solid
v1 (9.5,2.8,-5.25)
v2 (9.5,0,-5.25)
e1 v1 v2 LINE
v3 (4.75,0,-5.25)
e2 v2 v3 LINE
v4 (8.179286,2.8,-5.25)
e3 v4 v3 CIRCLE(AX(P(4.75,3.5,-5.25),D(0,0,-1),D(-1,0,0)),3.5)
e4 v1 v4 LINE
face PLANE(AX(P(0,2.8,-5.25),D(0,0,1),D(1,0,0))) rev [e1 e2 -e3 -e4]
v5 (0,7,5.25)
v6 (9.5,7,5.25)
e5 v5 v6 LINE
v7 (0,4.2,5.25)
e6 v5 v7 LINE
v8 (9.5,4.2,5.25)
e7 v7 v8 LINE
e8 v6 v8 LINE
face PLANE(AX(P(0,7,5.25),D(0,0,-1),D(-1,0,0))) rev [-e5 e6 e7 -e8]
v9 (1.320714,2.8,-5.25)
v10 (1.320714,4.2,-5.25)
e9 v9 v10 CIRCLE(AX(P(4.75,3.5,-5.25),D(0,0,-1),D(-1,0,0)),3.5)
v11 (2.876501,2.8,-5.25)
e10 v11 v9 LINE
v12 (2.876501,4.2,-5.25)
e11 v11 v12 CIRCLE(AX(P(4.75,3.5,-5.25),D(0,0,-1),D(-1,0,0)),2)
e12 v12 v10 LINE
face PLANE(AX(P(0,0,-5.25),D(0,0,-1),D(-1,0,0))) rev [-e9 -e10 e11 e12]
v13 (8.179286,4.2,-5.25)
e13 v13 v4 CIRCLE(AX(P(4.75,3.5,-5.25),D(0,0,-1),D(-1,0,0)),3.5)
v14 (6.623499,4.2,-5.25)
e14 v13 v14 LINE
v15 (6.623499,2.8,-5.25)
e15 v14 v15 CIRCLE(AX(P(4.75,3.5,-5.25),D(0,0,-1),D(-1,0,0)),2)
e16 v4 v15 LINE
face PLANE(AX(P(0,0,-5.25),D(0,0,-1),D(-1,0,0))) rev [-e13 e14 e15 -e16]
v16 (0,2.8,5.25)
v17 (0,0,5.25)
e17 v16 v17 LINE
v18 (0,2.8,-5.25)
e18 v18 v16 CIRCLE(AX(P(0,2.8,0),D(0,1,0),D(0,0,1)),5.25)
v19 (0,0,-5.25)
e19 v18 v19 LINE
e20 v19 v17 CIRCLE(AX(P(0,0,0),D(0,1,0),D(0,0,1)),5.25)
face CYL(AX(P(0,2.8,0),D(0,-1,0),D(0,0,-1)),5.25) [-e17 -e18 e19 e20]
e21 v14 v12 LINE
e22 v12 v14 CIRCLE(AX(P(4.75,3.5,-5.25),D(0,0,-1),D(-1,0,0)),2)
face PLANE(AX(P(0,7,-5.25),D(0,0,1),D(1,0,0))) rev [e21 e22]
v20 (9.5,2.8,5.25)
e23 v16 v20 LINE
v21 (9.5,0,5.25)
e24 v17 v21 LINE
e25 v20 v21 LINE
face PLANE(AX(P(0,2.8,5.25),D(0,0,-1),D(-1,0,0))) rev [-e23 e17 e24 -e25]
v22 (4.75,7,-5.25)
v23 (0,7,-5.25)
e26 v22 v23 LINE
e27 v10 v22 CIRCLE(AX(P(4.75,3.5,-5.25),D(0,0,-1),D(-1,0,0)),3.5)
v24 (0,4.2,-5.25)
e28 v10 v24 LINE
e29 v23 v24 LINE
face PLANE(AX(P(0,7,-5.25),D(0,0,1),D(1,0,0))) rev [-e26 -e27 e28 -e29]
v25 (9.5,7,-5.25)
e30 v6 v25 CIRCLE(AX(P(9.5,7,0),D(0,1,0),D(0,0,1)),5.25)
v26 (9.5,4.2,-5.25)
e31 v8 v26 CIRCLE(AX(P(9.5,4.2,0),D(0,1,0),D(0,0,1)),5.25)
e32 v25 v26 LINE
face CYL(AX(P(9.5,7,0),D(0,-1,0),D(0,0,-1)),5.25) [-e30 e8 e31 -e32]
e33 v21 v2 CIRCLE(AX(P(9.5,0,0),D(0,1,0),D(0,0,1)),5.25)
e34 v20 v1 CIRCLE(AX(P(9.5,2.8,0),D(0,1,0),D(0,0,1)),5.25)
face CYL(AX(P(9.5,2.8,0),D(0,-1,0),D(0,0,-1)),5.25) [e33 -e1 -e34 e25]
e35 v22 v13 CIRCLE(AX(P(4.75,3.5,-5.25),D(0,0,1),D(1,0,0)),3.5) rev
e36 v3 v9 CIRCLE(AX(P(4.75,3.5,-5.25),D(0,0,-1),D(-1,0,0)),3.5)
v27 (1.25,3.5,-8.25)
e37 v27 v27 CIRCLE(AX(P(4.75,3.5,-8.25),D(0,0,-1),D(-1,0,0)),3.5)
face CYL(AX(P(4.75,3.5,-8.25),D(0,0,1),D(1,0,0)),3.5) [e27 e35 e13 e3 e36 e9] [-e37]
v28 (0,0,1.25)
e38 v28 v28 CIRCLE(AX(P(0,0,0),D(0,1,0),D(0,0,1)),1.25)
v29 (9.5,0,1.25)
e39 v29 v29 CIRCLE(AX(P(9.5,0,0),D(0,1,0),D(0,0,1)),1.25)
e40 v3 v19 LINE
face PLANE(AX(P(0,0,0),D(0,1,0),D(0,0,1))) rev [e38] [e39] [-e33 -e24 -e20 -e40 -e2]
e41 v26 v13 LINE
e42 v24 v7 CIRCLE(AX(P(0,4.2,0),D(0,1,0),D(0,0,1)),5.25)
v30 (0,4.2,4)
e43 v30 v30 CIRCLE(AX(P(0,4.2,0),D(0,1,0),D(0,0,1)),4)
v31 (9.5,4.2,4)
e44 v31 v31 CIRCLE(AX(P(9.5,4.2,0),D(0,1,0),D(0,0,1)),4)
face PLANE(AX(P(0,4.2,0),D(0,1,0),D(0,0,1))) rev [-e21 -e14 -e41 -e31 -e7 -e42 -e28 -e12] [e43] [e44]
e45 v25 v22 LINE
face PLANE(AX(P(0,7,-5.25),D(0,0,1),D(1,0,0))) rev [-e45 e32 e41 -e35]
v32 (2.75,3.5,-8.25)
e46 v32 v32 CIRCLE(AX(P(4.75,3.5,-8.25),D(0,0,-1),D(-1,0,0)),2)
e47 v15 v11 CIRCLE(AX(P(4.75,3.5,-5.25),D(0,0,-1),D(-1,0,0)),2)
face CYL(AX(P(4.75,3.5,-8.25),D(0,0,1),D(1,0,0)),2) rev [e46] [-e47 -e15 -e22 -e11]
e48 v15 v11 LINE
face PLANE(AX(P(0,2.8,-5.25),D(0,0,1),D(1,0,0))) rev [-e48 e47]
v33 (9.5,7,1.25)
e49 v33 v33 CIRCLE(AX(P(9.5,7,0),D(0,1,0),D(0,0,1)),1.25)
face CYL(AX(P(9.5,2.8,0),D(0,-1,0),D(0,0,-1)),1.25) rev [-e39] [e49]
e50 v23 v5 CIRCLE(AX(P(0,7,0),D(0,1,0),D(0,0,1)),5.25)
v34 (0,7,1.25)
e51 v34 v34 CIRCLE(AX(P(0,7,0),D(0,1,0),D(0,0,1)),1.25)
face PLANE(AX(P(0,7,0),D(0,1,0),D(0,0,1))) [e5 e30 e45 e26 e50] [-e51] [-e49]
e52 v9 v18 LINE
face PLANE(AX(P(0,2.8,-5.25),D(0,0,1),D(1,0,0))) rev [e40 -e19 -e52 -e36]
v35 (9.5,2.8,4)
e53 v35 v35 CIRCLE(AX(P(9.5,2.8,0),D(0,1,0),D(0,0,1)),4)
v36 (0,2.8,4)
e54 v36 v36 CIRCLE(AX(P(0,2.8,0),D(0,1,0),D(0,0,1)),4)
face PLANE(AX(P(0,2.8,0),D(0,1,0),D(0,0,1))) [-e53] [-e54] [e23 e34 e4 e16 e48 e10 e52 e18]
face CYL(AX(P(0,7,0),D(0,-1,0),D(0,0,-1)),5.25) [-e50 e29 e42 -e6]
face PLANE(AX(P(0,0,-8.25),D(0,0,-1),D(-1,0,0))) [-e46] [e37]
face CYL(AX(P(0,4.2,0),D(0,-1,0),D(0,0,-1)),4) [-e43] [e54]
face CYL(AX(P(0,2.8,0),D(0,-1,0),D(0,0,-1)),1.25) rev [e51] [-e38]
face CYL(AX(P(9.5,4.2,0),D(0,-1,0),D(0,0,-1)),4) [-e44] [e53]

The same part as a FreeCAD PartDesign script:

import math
import FreeCAD as App
import Part
import Sketcher
Q = App.Units.Quantity

doc = App.newDocument("Part")
body = doc.addObject("PartDesign::Body", "Body")

# Sketch on XZ plane
sketch1 = body.newObject("Sketcher::SketchObject", "Sketch")
sketch1.AttachmentSupport = (doc.getObject("XZ_Plane"), [""])
sketch1.MapMode = "FlatFace"
sketch1.addGeometry([
    Part.LineSegment(App.Vector(9.5, -5.2, 0), App.Vector(0, -5.2, 0)),  # 0
    Part.ArcOfCircle(Part.Circle(App.Vector(0, 0, 0), App.Vector(0, 0, 1), 5.2), math.radians(90), math.radians(270)),  # 1
    Part.LineSegment(App.Vector(0, 5.2, 0), App.Vector(9.5, 5.2, 0)),  # 2
    Part.ArcOfCircle(Part.Circle(App.Vector(9.5, 0, 0), App.Vector(0, 0, 1), 5.2), math.radians(-90), math.radians(90)),  # 3
    Part.Circle(App.Vector(9.5, 0, 0), App.Vector(0, 0, 1), 1.2),  # 4
    Part.Circle(App.Vector(0, 0, 0), App.Vector(0, 0, 1), 1.2),  # 5
], False)
sketch1.addConstraint([
    Sketcher.Constraint("Tangent", 0, 2, 1, 2),
    Sketcher.Constraint("Tangent", 1, 1, 2, 1),
    Sketcher.Constraint("Tangent", 2, 2, 3, 2),
    Sketcher.Constraint("Tangent", 3, 1, 0, 1),
    Sketcher.Constraint("Horizontal", 0),
    Sketcher.Constraint("Horizontal", 2),
    Sketcher.Constraint("Coincident", 1, 3, -1, 1),
    Sketcher.Constraint("Coincident", 5, 3, -1, 1),
    Sketcher.Constraint("Coincident", 4, 3, 3, 3),
    Sketcher.Constraint("Equal", 4, 5),
    Sketcher.Constraint("Diameter", 4, Q("2.5 mm")),
    Sketcher.Constraint("Radius", 1, Q("5.25 mm")),
    Sketcher.Constraint("DistanceX", 0, 2, 0, 1, Q("9.5 mm")),
])
pad1 = body.newObject("PartDesign::Pad", "Pad")
pad1.Profile = sketch1
pad1.Length = 2.8
pad1.Reversed = True

# Sketch on XZ plane
sketch2 = body.newObject("Sketcher::SketchObject", "Sketch001")
sketch2.AttachmentSupport = (doc.getObject("XZ_Plane"), [""])
sketch2.MapMode = "FlatFace"
sketch2.AttachmentOffset = App.Placement(App.Vector(0, 0, -2.8), App.Rotation())
sketch2.addGeometry([
    Part.Circle(App.Vector(0, 0, 0), App.Vector(0, 0, 1), 4),
    Part.Circle(App.Vector(0, 0, 0), App.Vector(0, 0, 1), 1.2),
    Part.Circle(App.Vector(9.5, 0, 0), App.Vector(0, 0, 1), 4),
    Part.Circle(App.Vector(9.5, 0, 0), App.Vector(0, 0, 1), 1.2),
], False)
sketch2.addConstraint([
    Sketcher.Constraint("Coincident", 0, 3, -1, 1),
    Sketcher.Constraint("Coincident", 1, 3, -1, 1),
    Sketcher.Constraint("Coincident", 3, 3, 2, 3),
    Sketcher.Constraint("Equal", 0, 2),
    Sketcher.Constraint("Equal", 1, 3),
    Sketcher.Constraint("PointOnObject", 2, 3, -1),
    Sketcher.Constraint("Diameter", 0, Q("8 mm")),
    Sketcher.Constraint("Diameter", 1, Q("2.5 mm")),
    Sketcher.Constraint("DistanceX", -1, 1, 2, 3, Q("9.5 mm")),
])
pad2 = body.newObject("PartDesign::Pad", "Pad001")
pad2.Profile = sketch2
pad2.Length = 1.4
pad2.Reversed = True

# Sketch on XZ plane
sketch3 = body.newObject("Sketcher::SketchObject", "Sketch002")
sketch3.AttachmentSupport = (doc.getObject("XZ_Plane"), [""])
sketch3.MapMode = "FlatFace"
sketch3.AttachmentOffset = App.Placement(App.Vector(0, 0, -4.2), App.Rotation())
sketch3.addGeometry([
    Part.LineSegment(App.Vector(9.5, -5.2, 0), App.Vector(0, -5.2, 0)),  # 0
    Part.ArcOfCircle(Part.Circle(App.Vector(0, 0, 0), App.Vector(0, 0, 1), 5.2), math.radians(90), math.radians(270)),  # 1
    Part.LineSegment(App.Vector(0, 5.2, 0), App.Vector(9.5, 5.2, 0)),  # 2
    Part.ArcOfCircle(Part.Circle(App.Vector(9.5, 0, 0), App.Vector(0, 0, 1), 5.2), math.radians(-90), math.radians(90)),  # 3
    Part.Circle(App.Vector(9.5, 0, 0), App.Vector(0, 0, 1), 1.2),  # 4
    Part.Circle(App.Vector(0, 0, 0), App.Vector(0, 0, 1), 1.2),  # 5
], False)
sketch3.addConstraint([
    Sketcher.Constraint("Tangent", 0, 2, 1, 2),
    Sketcher.Constraint("Tangent", 1, 1, 2, 1),
    Sketcher.Constraint("Tangent", 2, 2, 3, 2),
    Sketcher.Constraint("Tangent", 3, 1, 0, 1),
    Sketcher.Constraint("Horizontal", 0),
    Sketcher.Constraint("Horizontal", 2),
    Sketcher.Constraint("Coincident", 1, 3, -1, 1),
    Sketcher.Constraint("Coincident", 5, 3, -1, 1),
    Sketcher.Constraint("Coincident", 4, 3, 3, 3),
    Sketcher.Constraint("Equal", 4, 5),
    Sketcher.Constraint("Diameter", 4, Q("2.5 mm")),
    Sketcher.Constraint("Radius", 1, Q("5.25 mm")),
    Sketcher.Constraint("DistanceX", 0, 2, 0, 1, Q("9.5 mm")),
])
pad3 = body.newObject("PartDesign::Pad", "Pad002")
pad3.Profile = sketch3
pad3.Length = 2.8
pad3.Reversed = True

# Sketch on XY plane
sketch4 = body.newObject("Sketcher::SketchObject", "Sketch003")
sketch4.AttachmentSupport = (doc.getObject("XY_Plane"), [""])
sketch4.MapMode = "FlatFace"
sketch4.AttachmentOffset = App.Placement(App.Vector(0, 0, -5.25), App.Rotation())
sketch4.addGeometry([
    Part.ArcOfCircle(Part.Circle(App.Vector(4.8, 3.5, 0), App.Vector(0, 0, 1), 3.5), math.radians(-144), math.radians(-36)),  # 0
    Part.ArcOfCircle(Part.Circle(App.Vector(4.8, 3.5, 0), App.Vector(0, 0, 1), 3.5), math.radians(-168), math.radians(-144)),  # 1
    Part.ArcOfCircle(Part.Circle(App.Vector(4.7, 3.5, 0), App.Vector(0, 0, 1), 3.5), math.radians(180), math.radians(191.54)),  # 2
    Part.ArcOfCircle(Part.Circle(App.Vector(4.7, 3.5, 0), App.Vector(0, 0, 1), 3.5), math.radians(144), math.radians(180)),  # 3
    Part.ArcOfCircle(Part.Circle(App.Vector(4.8, 3.5, 0), App.Vector(0, 0, 1), 3.5), math.radians(36), math.radians(144)),  # 4
    Part.ArcOfCircle(Part.Circle(App.Vector(4.7, 3.5, 0), App.Vector(0, 0, 1), 3.5), math.radians(-12), math.radians(36)),  # 5
    Part.ArcOfCircle(Part.Circle(App.Vector(4.7, 3.5, 0), App.Vector(0, 0, 1), 3.5), math.radians(-36), math.radians(-12)),  # 6
    Part.ArcOfCircle(Part.Circle(App.Vector(4.8, 3.5, 0), App.Vector(0, 0, 1), 2), math.radians(-144), math.radians(-36)),  # 7
    Part.ArcOfCircle(Part.Circle(App.Vector(4.7, 3.5, 0), App.Vector(0, 0, 1), 2), math.radians(-36.38), math.radians(-20.49)),  # 8
    Part.ArcOfCircle(Part.Circle(App.Vector(4.7, 3.5, 0), App.Vector(0, 0, 1), 2), math.radians(-20), math.radians(36)),  # 9
    Part.ArcOfCircle(Part.Circle(App.Vector(4.8, 3.5, 0), App.Vector(0, 0, 1), 2), math.radians(36), math.radians(144)),  # 10
    Part.ArcOfCircle(Part.Circle(App.Vector(4.8, 3.5, 0), App.Vector(0, 0, 1), 2), math.radians(144), math.radians(180)),  # 11
    Part.ArcOfCircle(Part.Circle(App.Vector(4.7, 3.5, 0), App.Vector(0, 0, 1), 2), math.radians(180), math.radians(200)),  # 12
    Part.ArcOfCircle(Part.Circle(App.Vector(4.8, 3.5, 0), App.Vector(0, 0, 1), 2), math.radians(-159.51), math.radians(-143.62)),  # 13
], False)
sketch4.addConstraint([
    Sketcher.Constraint("Tangent", 0, 1, 1, 2),
    Sketcher.Constraint("Tangent", 1, 1, 2, 2),
    Sketcher.Constraint("Tangent", 2, 1, 3, 2),
    Sketcher.Constraint("Tangent", 3, 1, 4, 2),
    Sketcher.Constraint("Tangent", 4, 1, 5, 2),
    Sketcher.Constraint("Tangent", 5, 1, 6, 2),
    Sketcher.Constraint("Tangent", 6, 1, 0, 2),
    Sketcher.Constraint("Tangent", 7, 2, 8, 1),
    Sketcher.Constraint("Tangent", 8, 2, 9, 1),
    Sketcher.Constraint("Tangent", 9, 2, 10, 1),
    Sketcher.Constraint("Tangent", 10, 2, 11, 1),
    Sketcher.Constraint("Tangent", 11, 2, 12, 1),
    Sketcher.Constraint("Tangent", 12, 2, 13, 1),
    Sketcher.Constraint("Tangent", 13, 2, 7, 1),
    Sketcher.Constraint("Coincident", 2, 3, 0, 3),
    Sketcher.Constraint("Coincident", 4, 3, 0, 3),
    Sketcher.Constraint("Coincident", 7, 3, 0, 3),
    Sketcher.Constraint("Coincident", 9, 3, 0, 3),
    Sketcher.Constraint("Coincident", 11, 3, 0, 3),
    Sketcher.Constraint("Horizontal", 13, 3, 2, 1),
    Sketcher.Constraint("Horizontal", 3, 1, 4, 1),
    Sketcher.Constraint("Horizontal", 1, 1, 5, 1),
    Sketcher.Constraint("Horizontal", 0, 1, 6, 1),
    Sketcher.Constraint("Horizontal", 5, 1, 8, 2),
    Sketcher.Constraint("Horizontal", 9, 2, 10, 2),
    Sketcher.Constraint("Horizontal", 2, 1, 11, 2),
    Sketcher.Constraint("Horizontal", 8, 2, 12, 2),
    Sketcher.Constraint("Horizontal", 7, 2, 13, 2),
    Sketcher.Constraint("Vertical", 0, 1, 3, 1),
    Sketcher.Constraint("Vertical", 7, 2, 9, 2),
    Sketcher.Constraint("Radius", 7, Q("2 mm")),
    Sketcher.Constraint("Radius", 0, Q("3.5 mm")),
    Sketcher.Constraint("DistanceY", -1, 1, 0, 3, Q("3.5 mm")),
    Sketcher.Constraint("DistanceY", -1, 1, 1, 1, Q("2.8 mm")),
    Sketcher.Constraint("DistanceX", -1, 1, 0, 3, Q("4.75 mm")),
    Sketcher.Constraint("DistanceY", -1, 1, 7, 2, Q("2.313602 mm")),
    Sketcher.Constraint("DistanceY", 6, 1, 7, 2, Q("0.889799 mm")),
])
pad4 = body.newObject("PartDesign::Pad", "Pad003")
pad4.Profile = sketch4
pad4.Length = 3
pad4.Reversed = True

doc.recompute()
